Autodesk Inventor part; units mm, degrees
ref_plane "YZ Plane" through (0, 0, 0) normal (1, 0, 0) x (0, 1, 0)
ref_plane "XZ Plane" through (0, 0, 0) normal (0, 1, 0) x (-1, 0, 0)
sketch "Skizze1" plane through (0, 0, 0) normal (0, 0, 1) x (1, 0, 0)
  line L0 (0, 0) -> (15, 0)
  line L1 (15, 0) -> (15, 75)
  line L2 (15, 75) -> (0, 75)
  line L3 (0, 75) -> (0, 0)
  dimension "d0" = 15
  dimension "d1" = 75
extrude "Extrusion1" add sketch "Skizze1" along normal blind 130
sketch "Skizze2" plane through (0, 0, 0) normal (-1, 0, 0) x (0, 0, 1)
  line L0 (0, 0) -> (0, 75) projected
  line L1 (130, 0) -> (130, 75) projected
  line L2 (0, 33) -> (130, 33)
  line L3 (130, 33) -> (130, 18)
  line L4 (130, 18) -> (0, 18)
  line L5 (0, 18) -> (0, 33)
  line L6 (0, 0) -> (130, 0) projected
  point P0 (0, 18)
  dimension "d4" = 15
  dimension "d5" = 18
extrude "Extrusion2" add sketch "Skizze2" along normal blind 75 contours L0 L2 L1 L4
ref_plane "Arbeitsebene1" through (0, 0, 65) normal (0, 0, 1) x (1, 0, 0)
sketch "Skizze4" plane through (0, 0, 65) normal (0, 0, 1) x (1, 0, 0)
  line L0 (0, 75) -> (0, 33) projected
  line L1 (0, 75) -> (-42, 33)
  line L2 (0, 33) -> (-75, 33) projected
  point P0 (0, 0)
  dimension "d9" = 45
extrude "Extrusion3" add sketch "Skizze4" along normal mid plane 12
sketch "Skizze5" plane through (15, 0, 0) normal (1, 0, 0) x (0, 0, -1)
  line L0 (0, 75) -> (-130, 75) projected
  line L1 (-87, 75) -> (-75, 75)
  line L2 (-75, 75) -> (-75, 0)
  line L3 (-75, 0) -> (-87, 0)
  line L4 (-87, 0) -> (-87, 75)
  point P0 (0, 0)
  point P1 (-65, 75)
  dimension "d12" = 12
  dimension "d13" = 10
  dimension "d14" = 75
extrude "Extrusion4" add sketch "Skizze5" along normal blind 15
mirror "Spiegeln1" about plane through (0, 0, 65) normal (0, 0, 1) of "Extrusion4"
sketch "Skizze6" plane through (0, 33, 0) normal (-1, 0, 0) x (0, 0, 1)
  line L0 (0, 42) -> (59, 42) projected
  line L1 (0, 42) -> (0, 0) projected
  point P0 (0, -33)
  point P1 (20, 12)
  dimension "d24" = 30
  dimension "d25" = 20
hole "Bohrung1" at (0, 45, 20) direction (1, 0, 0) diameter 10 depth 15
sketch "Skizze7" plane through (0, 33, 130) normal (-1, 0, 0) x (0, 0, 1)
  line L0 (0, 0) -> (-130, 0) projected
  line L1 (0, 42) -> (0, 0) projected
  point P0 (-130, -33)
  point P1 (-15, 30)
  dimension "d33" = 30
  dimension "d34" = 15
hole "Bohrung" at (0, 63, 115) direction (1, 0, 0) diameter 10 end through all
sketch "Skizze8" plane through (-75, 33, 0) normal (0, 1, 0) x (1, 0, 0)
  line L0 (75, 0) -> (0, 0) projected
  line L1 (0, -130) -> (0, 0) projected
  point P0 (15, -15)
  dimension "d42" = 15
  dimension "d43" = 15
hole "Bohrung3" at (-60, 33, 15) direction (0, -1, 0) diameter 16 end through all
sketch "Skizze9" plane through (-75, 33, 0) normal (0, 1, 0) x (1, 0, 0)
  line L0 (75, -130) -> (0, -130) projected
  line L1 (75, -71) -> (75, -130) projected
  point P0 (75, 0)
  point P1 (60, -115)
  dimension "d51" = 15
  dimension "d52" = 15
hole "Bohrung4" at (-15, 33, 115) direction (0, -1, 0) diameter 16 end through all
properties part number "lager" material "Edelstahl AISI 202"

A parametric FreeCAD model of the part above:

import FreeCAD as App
import Part
import Sketcher
Q = App.Units.Quantity

doc = App.newDocument("Part")
body = doc.addObject("PartDesign::Body", "Body")

# Sketch on XY plane
sketch1 = body.newObject("Sketcher::SketchObject", "Sketch")
sketch1.AttachmentSupport = (doc.getObject("XY_Plane"), [""])
sketch1.MapMode = "FlatFace"
sketch1.addGeometry([
    Part.LineSegment(App.Vector(0, 75, 0), App.Vector(0, 0, 0)),
    Part.LineSegment(App.Vector(0, 0, 0), App.Vector(15, 0, 0)),
    Part.LineSegment(App.Vector(15, 0, 0), App.Vector(15, 75, 0)),
    Part.LineSegment(App.Vector(15, 75, 0), App.Vector(0, 75, 0)),
], False)
sketch1.addConstraint([
    Sketcher.Constraint("Coincident", 0, 2, 1, 1),
    Sketcher.Constraint("Coincident", 1, 2, 2, 1),
    Sketcher.Constraint("Coincident", 2, 2, 3, 1),
    Sketcher.Constraint("Coincident", 3, 2, 0, 1),
    Sketcher.Constraint("Vertical", 0),
    Sketcher.Constraint("Horizontal", 1),
    Sketcher.Constraint("Vertical", 2),
    Sketcher.Constraint("Horizontal", 3),
    Sketcher.Constraint("Coincident", 0, 2, -1, 1),
    Sketcher.Constraint("DistanceX", 1, 1, 1, 2, Q("15 mm")),
    Sketcher.Constraint("DistanceY", 0, 2, 0, 1, Q("75 mm")),
])
pad1 = body.newObject("PartDesign::Pad", "Pad")
pad1.Profile = sketch1
pad1.Length = 130

# Sketch on YZ plane
sketch2 = body.newObject("Sketcher::SketchObject", "Sketch001")
sketch2.AttachmentSupport = (doc.getObject("YZ_Plane"), [""])
sketch2.MapMode = "FlatFace"
sketch2.addGeometry([
    Part.LineSegment(App.Vector(33, 0, 0), App.Vector(18, 0, 0)),
    Part.LineSegment(App.Vector(18, 0, 0), App.Vector(18, 130, 0)),
    Part.LineSegment(App.Vector(18, 130, 0), App.Vector(33, 130, 0)),
    Part.LineSegment(App.Vector(33, 130, 0), App.Vector(33, 0, 0)),
], False)
sketch2.addConstraint([
    Sketcher.Constraint("Coincident", 0, 2, 1, 1),
    Sketcher.Constraint("Coincident", 1, 2, 2, 1),
    Sketcher.Constraint("Coincident", 2, 2, 3, 1),
    Sketcher.Constraint("Coincident", 3, 2, 0, 1),
    Sketcher.Constraint("Horizontal", 0),
    Sketcher.Constraint("Vertical", 1),
    Sketcher.Constraint("Horizontal", 2),
    Sketcher.Constraint("Vertical", 3),
    Sketcher.Constraint("PointOnObject", 0, 2, -1),
    Sketcher.Constraint("DistanceX", 0, 2, 0, 1, Q("15 mm")),
    Sketcher.Constraint("DistanceX", -1, 1, 0, 2, Q("18 mm")),
    Sketcher.Constraint("DistanceY", 1, 1, 1, 2, Q("130 mm")),
])
pad2 = body.newObject("PartDesign::Pad", "Pad001")
pad2.Profile = sketch2
pad2.Length = 75
pad2.Reversed = True

# Sketch on XY plane
sketch3 = body.newObject("Sketcher::SketchObject", "Sketch002")
sketch3.AttachmentSupport = (doc.getObject("XY_Plane"), [""])
sketch3.MapMode = "FlatFace"
sketch3.AttachmentOffset = App.Placement(App.Vector(0, 0, 65), App.Rotation())
sketch3.addGeometry([
    Part.LineSegment(App.Vector(0, 33, 0), App.Vector(0, 75, 0)),
    Part.LineSegment(App.Vector(0, 75, 0), App.Vector(-42, 33, 0)),
    Part.LineSegment(App.Vector(-42, 33, 0), App.Vector(0, 33, 0)),
], False)
sketch3.addConstraint([
    Sketcher.Constraint("Coincident", 0, 2, 1, 1),
    Sketcher.Constraint("Coincident", 1, 2, 2, 1),
    Sketcher.Constraint("Coincident", 2, 2, 0, 1),
    Sketcher.Constraint("Vertical", 0),
    Sketcher.Constraint("Horizontal", 2),
    Sketcher.Constraint("PointOnObject", 0, 2, -2),
    Sketcher.Constraint("Equal", 2, 0),
    Sketcher.Constraint("DistanceX", 2, 1, 2, 2, Q("42 mm")),
    Sketcher.Constraint("DistanceY", -1, 1, 0, 2, Q("75 mm")),
])
pad3 = body.newObject("PartDesign::Pad", "Pad002")
pad3.Profile = sketch3
pad3.Length = 12
pad3.Midplane = True

# Sketch on YZ plane
sketch4 = body.newObject("Sketcher::SketchObject", "Sketch003")
sketch4.AttachmentSupport = (doc.getObject("YZ_Plane"), [""])
sketch4.MapMode = "FlatFace"
sketch4.AttachmentOffset = App.Placement(App.Vector(0, 0, 15), App.Rotation())
sketch4.addGeometry([
    Part.LineSegment(App.Vector(0, 75, 0), App.Vector(75, 75, 0)),
    Part.LineSegment(App.Vector(75, 75, 0), App.Vector(75, 87, 0)),
    Part.LineSegment(App.Vector(75, 87, 0), App.Vector(0, 87, 0)),
    Part.LineSegment(App.Vector(0, 87, 0), App.Vector(0, 75, 0)),
], False)
sketch4.addConstraint([
    Sketcher.Constraint("Coincident", 0, 2, 1, 1),
    Sketcher.Constraint("Coincident", 1, 2, 2, 1),
    Sketcher.Constraint("Coincident", 2, 2, 3, 1),
    Sketcher.Constraint("Coincident", 3, 2, 0, 1),
    Sketcher.Constraint("Horizontal", 0),
    Sketcher.Constraint("Vertical", 1),
    Sketcher.Constraint("Horizontal", 2),
    Sketcher.Constraint("Vertical", 3),
    Sketcher.Constraint("PointOnObject", 2, 2, -2),
    Sketcher.Constraint("DistanceX", 0, 1, 0, 2, Q("75 mm")),
    Sketcher.Constraint("DistanceY", 1, 1, 1, 2, Q("12 mm")),
    Sketcher.Constraint("DistanceY", -1, 1, 0, 2, Q("75 mm")),
])
pad4 = body.newObject("PartDesign::Pad", "Pad003")
pad4.Profile = sketch4
pad4.Length = 15
doc.recompute()

datumplane = body.newObject("PartDesign::Plane", "DatumPlane")
datumplane.AttachmentSupport = (doc.getObject("XY_Plane"), [""])
datumplane.MapMode = "FlatFace"
datumplane.AttachmentOffset = App.Placement(App.Vector(0, 0, 65), App.Rotation())
mirrored = body.newObject("PartDesign::Mirrored", "Mirrored")
mirrored.Originals = [pad4]
mirrored.MirrorPlane = (datumplane, [""])
body.Tip = mirrored

# Sketch on YZ plane
sketch5 = body.newObject("Sketcher::SketchObject", "Sketch004")
sketch5.AttachmentSupport = (doc.getObject("YZ_Plane"), [""])
sketch5.MapMode = "FlatFace"
sketch5.addGeometry(Part.Circle(App.Vector(45, 20, 0), App.Vector(0, 0, 1), 5), False)
sketch5.addConstraint([
    Sketcher.Constraint("Diameter", 0, Q("10 mm")),
    Sketcher.Constraint("DistanceX", -1, 1, 0, 3, Q("45 mm")),
    Sketcher.Constraint("DistanceY", -1, 1, 0, 3, Q("20 mm")),
])
doc.recompute()
hole = body.newObject("PartDesign::Hole", "Hole")
hole.Profile = sketch5
hole.ThreadType = "None"
hole.Diameter = 10
hole.DepthType = "Dimension"
hole.Depth = 15
hole.DrillPoint = "Flat"
hole.Reversed = True

# Sketch on YZ plane
sketch6 = body.newObject("Sketcher::SketchObject", "Sketch005")
sketch6.AttachmentSupport = (doc.getObject("YZ_Plane"), [""])
sketch6.MapMode = "FlatFace"
sketch6.addGeometry(Part.Circle(App.Vector(63, 115, 0), App.Vector(0, 0, 1), 5), False)
sketch6.addConstraint([
    Sketcher.Constraint("Diameter", 0, Q("10 mm")),
    Sketcher.Constraint("DistanceX", -1, 1, 0, 3, Q("63 mm")),
    Sketcher.Constraint("DistanceY", -1, 1, 0, 3, Q("115 mm")),
])
doc.recompute()
hole2 = body.newObject("PartDesign::Hole", "Hole001")
hole2.Profile = sketch6
hole2.ThreadType = "None"
hole2.Diameter = 10
hole2.DepthType = "ThroughAll"
hole2.Reversed = True

# Sketch on XZ plane
sketch7 = body.newObject("Sketcher::SketchObject", "Sketch006")
sketch7.AttachmentSupport = (doc.getObject("XZ_Plane"), [""])
sketch7.MapMode = "FlatFace"
sketch7.AttachmentOffset = App.Placement(App.Vector(0, 0, -33), App.Rotation())
sketch7.addGeometry(Part.Circle(App.Vector(-60, 15, 0), App.Vector(0, 0, 1), 8), False)
sketch7.addConstraint([
    Sketcher.Constraint("Diameter", 0, Q("16 mm")),
    Sketcher.Constraint("DistanceX", 0, 3, -1, 1, Q("60 mm")),
    Sketcher.Constraint("DistanceY", -1, 1, 0, 3, Q("15 mm")),
])
doc.recompute()
hole3 = body.newObject("PartDesign::Hole", "Hole002")
hole3.Profile = sketch7
hole3.ThreadType = "None"
hole3.Diameter = 16
hole3.DepthType = "ThroughAll"
hole3.Reversed = True

# Sketch on XZ plane
sketch8 = body.newObject("Sketcher::SketchObject", "Sketch007")
sketch8.AttachmentSupport = (doc.getObject("XZ_Plane"), [""])
sketch8.MapMode = "FlatFace"
sketch8.AttachmentOffset = App.Placement(App.Vector(0, 0, -33), App.Rotation())
sketch8.addGeometry(Part.Circle(App.Vector(-15, 115, 0), App.Vector(0, 0, 1), 8), False)
sketch8.addConstraint([
    Sketcher.Constraint("Diameter", 0, Q("16 mm")),
    Sketcher.Constraint("DistanceX", 0, 3, -1, 1, Q("15 mm")),
    Sketcher.Constraint("DistanceY", -1, 1, 0, 3, Q("115 mm")),
])
doc.recompute()
hole4 = body.newObject("PartDesign::Hole", "Hole003")
hole4.Profile = sketch8
hole4.ThreadType = "None"
hole4.Diameter = 16
hole4.DepthType = "ThroughAll"
hole4.Reversed = True

doc.recompute()
